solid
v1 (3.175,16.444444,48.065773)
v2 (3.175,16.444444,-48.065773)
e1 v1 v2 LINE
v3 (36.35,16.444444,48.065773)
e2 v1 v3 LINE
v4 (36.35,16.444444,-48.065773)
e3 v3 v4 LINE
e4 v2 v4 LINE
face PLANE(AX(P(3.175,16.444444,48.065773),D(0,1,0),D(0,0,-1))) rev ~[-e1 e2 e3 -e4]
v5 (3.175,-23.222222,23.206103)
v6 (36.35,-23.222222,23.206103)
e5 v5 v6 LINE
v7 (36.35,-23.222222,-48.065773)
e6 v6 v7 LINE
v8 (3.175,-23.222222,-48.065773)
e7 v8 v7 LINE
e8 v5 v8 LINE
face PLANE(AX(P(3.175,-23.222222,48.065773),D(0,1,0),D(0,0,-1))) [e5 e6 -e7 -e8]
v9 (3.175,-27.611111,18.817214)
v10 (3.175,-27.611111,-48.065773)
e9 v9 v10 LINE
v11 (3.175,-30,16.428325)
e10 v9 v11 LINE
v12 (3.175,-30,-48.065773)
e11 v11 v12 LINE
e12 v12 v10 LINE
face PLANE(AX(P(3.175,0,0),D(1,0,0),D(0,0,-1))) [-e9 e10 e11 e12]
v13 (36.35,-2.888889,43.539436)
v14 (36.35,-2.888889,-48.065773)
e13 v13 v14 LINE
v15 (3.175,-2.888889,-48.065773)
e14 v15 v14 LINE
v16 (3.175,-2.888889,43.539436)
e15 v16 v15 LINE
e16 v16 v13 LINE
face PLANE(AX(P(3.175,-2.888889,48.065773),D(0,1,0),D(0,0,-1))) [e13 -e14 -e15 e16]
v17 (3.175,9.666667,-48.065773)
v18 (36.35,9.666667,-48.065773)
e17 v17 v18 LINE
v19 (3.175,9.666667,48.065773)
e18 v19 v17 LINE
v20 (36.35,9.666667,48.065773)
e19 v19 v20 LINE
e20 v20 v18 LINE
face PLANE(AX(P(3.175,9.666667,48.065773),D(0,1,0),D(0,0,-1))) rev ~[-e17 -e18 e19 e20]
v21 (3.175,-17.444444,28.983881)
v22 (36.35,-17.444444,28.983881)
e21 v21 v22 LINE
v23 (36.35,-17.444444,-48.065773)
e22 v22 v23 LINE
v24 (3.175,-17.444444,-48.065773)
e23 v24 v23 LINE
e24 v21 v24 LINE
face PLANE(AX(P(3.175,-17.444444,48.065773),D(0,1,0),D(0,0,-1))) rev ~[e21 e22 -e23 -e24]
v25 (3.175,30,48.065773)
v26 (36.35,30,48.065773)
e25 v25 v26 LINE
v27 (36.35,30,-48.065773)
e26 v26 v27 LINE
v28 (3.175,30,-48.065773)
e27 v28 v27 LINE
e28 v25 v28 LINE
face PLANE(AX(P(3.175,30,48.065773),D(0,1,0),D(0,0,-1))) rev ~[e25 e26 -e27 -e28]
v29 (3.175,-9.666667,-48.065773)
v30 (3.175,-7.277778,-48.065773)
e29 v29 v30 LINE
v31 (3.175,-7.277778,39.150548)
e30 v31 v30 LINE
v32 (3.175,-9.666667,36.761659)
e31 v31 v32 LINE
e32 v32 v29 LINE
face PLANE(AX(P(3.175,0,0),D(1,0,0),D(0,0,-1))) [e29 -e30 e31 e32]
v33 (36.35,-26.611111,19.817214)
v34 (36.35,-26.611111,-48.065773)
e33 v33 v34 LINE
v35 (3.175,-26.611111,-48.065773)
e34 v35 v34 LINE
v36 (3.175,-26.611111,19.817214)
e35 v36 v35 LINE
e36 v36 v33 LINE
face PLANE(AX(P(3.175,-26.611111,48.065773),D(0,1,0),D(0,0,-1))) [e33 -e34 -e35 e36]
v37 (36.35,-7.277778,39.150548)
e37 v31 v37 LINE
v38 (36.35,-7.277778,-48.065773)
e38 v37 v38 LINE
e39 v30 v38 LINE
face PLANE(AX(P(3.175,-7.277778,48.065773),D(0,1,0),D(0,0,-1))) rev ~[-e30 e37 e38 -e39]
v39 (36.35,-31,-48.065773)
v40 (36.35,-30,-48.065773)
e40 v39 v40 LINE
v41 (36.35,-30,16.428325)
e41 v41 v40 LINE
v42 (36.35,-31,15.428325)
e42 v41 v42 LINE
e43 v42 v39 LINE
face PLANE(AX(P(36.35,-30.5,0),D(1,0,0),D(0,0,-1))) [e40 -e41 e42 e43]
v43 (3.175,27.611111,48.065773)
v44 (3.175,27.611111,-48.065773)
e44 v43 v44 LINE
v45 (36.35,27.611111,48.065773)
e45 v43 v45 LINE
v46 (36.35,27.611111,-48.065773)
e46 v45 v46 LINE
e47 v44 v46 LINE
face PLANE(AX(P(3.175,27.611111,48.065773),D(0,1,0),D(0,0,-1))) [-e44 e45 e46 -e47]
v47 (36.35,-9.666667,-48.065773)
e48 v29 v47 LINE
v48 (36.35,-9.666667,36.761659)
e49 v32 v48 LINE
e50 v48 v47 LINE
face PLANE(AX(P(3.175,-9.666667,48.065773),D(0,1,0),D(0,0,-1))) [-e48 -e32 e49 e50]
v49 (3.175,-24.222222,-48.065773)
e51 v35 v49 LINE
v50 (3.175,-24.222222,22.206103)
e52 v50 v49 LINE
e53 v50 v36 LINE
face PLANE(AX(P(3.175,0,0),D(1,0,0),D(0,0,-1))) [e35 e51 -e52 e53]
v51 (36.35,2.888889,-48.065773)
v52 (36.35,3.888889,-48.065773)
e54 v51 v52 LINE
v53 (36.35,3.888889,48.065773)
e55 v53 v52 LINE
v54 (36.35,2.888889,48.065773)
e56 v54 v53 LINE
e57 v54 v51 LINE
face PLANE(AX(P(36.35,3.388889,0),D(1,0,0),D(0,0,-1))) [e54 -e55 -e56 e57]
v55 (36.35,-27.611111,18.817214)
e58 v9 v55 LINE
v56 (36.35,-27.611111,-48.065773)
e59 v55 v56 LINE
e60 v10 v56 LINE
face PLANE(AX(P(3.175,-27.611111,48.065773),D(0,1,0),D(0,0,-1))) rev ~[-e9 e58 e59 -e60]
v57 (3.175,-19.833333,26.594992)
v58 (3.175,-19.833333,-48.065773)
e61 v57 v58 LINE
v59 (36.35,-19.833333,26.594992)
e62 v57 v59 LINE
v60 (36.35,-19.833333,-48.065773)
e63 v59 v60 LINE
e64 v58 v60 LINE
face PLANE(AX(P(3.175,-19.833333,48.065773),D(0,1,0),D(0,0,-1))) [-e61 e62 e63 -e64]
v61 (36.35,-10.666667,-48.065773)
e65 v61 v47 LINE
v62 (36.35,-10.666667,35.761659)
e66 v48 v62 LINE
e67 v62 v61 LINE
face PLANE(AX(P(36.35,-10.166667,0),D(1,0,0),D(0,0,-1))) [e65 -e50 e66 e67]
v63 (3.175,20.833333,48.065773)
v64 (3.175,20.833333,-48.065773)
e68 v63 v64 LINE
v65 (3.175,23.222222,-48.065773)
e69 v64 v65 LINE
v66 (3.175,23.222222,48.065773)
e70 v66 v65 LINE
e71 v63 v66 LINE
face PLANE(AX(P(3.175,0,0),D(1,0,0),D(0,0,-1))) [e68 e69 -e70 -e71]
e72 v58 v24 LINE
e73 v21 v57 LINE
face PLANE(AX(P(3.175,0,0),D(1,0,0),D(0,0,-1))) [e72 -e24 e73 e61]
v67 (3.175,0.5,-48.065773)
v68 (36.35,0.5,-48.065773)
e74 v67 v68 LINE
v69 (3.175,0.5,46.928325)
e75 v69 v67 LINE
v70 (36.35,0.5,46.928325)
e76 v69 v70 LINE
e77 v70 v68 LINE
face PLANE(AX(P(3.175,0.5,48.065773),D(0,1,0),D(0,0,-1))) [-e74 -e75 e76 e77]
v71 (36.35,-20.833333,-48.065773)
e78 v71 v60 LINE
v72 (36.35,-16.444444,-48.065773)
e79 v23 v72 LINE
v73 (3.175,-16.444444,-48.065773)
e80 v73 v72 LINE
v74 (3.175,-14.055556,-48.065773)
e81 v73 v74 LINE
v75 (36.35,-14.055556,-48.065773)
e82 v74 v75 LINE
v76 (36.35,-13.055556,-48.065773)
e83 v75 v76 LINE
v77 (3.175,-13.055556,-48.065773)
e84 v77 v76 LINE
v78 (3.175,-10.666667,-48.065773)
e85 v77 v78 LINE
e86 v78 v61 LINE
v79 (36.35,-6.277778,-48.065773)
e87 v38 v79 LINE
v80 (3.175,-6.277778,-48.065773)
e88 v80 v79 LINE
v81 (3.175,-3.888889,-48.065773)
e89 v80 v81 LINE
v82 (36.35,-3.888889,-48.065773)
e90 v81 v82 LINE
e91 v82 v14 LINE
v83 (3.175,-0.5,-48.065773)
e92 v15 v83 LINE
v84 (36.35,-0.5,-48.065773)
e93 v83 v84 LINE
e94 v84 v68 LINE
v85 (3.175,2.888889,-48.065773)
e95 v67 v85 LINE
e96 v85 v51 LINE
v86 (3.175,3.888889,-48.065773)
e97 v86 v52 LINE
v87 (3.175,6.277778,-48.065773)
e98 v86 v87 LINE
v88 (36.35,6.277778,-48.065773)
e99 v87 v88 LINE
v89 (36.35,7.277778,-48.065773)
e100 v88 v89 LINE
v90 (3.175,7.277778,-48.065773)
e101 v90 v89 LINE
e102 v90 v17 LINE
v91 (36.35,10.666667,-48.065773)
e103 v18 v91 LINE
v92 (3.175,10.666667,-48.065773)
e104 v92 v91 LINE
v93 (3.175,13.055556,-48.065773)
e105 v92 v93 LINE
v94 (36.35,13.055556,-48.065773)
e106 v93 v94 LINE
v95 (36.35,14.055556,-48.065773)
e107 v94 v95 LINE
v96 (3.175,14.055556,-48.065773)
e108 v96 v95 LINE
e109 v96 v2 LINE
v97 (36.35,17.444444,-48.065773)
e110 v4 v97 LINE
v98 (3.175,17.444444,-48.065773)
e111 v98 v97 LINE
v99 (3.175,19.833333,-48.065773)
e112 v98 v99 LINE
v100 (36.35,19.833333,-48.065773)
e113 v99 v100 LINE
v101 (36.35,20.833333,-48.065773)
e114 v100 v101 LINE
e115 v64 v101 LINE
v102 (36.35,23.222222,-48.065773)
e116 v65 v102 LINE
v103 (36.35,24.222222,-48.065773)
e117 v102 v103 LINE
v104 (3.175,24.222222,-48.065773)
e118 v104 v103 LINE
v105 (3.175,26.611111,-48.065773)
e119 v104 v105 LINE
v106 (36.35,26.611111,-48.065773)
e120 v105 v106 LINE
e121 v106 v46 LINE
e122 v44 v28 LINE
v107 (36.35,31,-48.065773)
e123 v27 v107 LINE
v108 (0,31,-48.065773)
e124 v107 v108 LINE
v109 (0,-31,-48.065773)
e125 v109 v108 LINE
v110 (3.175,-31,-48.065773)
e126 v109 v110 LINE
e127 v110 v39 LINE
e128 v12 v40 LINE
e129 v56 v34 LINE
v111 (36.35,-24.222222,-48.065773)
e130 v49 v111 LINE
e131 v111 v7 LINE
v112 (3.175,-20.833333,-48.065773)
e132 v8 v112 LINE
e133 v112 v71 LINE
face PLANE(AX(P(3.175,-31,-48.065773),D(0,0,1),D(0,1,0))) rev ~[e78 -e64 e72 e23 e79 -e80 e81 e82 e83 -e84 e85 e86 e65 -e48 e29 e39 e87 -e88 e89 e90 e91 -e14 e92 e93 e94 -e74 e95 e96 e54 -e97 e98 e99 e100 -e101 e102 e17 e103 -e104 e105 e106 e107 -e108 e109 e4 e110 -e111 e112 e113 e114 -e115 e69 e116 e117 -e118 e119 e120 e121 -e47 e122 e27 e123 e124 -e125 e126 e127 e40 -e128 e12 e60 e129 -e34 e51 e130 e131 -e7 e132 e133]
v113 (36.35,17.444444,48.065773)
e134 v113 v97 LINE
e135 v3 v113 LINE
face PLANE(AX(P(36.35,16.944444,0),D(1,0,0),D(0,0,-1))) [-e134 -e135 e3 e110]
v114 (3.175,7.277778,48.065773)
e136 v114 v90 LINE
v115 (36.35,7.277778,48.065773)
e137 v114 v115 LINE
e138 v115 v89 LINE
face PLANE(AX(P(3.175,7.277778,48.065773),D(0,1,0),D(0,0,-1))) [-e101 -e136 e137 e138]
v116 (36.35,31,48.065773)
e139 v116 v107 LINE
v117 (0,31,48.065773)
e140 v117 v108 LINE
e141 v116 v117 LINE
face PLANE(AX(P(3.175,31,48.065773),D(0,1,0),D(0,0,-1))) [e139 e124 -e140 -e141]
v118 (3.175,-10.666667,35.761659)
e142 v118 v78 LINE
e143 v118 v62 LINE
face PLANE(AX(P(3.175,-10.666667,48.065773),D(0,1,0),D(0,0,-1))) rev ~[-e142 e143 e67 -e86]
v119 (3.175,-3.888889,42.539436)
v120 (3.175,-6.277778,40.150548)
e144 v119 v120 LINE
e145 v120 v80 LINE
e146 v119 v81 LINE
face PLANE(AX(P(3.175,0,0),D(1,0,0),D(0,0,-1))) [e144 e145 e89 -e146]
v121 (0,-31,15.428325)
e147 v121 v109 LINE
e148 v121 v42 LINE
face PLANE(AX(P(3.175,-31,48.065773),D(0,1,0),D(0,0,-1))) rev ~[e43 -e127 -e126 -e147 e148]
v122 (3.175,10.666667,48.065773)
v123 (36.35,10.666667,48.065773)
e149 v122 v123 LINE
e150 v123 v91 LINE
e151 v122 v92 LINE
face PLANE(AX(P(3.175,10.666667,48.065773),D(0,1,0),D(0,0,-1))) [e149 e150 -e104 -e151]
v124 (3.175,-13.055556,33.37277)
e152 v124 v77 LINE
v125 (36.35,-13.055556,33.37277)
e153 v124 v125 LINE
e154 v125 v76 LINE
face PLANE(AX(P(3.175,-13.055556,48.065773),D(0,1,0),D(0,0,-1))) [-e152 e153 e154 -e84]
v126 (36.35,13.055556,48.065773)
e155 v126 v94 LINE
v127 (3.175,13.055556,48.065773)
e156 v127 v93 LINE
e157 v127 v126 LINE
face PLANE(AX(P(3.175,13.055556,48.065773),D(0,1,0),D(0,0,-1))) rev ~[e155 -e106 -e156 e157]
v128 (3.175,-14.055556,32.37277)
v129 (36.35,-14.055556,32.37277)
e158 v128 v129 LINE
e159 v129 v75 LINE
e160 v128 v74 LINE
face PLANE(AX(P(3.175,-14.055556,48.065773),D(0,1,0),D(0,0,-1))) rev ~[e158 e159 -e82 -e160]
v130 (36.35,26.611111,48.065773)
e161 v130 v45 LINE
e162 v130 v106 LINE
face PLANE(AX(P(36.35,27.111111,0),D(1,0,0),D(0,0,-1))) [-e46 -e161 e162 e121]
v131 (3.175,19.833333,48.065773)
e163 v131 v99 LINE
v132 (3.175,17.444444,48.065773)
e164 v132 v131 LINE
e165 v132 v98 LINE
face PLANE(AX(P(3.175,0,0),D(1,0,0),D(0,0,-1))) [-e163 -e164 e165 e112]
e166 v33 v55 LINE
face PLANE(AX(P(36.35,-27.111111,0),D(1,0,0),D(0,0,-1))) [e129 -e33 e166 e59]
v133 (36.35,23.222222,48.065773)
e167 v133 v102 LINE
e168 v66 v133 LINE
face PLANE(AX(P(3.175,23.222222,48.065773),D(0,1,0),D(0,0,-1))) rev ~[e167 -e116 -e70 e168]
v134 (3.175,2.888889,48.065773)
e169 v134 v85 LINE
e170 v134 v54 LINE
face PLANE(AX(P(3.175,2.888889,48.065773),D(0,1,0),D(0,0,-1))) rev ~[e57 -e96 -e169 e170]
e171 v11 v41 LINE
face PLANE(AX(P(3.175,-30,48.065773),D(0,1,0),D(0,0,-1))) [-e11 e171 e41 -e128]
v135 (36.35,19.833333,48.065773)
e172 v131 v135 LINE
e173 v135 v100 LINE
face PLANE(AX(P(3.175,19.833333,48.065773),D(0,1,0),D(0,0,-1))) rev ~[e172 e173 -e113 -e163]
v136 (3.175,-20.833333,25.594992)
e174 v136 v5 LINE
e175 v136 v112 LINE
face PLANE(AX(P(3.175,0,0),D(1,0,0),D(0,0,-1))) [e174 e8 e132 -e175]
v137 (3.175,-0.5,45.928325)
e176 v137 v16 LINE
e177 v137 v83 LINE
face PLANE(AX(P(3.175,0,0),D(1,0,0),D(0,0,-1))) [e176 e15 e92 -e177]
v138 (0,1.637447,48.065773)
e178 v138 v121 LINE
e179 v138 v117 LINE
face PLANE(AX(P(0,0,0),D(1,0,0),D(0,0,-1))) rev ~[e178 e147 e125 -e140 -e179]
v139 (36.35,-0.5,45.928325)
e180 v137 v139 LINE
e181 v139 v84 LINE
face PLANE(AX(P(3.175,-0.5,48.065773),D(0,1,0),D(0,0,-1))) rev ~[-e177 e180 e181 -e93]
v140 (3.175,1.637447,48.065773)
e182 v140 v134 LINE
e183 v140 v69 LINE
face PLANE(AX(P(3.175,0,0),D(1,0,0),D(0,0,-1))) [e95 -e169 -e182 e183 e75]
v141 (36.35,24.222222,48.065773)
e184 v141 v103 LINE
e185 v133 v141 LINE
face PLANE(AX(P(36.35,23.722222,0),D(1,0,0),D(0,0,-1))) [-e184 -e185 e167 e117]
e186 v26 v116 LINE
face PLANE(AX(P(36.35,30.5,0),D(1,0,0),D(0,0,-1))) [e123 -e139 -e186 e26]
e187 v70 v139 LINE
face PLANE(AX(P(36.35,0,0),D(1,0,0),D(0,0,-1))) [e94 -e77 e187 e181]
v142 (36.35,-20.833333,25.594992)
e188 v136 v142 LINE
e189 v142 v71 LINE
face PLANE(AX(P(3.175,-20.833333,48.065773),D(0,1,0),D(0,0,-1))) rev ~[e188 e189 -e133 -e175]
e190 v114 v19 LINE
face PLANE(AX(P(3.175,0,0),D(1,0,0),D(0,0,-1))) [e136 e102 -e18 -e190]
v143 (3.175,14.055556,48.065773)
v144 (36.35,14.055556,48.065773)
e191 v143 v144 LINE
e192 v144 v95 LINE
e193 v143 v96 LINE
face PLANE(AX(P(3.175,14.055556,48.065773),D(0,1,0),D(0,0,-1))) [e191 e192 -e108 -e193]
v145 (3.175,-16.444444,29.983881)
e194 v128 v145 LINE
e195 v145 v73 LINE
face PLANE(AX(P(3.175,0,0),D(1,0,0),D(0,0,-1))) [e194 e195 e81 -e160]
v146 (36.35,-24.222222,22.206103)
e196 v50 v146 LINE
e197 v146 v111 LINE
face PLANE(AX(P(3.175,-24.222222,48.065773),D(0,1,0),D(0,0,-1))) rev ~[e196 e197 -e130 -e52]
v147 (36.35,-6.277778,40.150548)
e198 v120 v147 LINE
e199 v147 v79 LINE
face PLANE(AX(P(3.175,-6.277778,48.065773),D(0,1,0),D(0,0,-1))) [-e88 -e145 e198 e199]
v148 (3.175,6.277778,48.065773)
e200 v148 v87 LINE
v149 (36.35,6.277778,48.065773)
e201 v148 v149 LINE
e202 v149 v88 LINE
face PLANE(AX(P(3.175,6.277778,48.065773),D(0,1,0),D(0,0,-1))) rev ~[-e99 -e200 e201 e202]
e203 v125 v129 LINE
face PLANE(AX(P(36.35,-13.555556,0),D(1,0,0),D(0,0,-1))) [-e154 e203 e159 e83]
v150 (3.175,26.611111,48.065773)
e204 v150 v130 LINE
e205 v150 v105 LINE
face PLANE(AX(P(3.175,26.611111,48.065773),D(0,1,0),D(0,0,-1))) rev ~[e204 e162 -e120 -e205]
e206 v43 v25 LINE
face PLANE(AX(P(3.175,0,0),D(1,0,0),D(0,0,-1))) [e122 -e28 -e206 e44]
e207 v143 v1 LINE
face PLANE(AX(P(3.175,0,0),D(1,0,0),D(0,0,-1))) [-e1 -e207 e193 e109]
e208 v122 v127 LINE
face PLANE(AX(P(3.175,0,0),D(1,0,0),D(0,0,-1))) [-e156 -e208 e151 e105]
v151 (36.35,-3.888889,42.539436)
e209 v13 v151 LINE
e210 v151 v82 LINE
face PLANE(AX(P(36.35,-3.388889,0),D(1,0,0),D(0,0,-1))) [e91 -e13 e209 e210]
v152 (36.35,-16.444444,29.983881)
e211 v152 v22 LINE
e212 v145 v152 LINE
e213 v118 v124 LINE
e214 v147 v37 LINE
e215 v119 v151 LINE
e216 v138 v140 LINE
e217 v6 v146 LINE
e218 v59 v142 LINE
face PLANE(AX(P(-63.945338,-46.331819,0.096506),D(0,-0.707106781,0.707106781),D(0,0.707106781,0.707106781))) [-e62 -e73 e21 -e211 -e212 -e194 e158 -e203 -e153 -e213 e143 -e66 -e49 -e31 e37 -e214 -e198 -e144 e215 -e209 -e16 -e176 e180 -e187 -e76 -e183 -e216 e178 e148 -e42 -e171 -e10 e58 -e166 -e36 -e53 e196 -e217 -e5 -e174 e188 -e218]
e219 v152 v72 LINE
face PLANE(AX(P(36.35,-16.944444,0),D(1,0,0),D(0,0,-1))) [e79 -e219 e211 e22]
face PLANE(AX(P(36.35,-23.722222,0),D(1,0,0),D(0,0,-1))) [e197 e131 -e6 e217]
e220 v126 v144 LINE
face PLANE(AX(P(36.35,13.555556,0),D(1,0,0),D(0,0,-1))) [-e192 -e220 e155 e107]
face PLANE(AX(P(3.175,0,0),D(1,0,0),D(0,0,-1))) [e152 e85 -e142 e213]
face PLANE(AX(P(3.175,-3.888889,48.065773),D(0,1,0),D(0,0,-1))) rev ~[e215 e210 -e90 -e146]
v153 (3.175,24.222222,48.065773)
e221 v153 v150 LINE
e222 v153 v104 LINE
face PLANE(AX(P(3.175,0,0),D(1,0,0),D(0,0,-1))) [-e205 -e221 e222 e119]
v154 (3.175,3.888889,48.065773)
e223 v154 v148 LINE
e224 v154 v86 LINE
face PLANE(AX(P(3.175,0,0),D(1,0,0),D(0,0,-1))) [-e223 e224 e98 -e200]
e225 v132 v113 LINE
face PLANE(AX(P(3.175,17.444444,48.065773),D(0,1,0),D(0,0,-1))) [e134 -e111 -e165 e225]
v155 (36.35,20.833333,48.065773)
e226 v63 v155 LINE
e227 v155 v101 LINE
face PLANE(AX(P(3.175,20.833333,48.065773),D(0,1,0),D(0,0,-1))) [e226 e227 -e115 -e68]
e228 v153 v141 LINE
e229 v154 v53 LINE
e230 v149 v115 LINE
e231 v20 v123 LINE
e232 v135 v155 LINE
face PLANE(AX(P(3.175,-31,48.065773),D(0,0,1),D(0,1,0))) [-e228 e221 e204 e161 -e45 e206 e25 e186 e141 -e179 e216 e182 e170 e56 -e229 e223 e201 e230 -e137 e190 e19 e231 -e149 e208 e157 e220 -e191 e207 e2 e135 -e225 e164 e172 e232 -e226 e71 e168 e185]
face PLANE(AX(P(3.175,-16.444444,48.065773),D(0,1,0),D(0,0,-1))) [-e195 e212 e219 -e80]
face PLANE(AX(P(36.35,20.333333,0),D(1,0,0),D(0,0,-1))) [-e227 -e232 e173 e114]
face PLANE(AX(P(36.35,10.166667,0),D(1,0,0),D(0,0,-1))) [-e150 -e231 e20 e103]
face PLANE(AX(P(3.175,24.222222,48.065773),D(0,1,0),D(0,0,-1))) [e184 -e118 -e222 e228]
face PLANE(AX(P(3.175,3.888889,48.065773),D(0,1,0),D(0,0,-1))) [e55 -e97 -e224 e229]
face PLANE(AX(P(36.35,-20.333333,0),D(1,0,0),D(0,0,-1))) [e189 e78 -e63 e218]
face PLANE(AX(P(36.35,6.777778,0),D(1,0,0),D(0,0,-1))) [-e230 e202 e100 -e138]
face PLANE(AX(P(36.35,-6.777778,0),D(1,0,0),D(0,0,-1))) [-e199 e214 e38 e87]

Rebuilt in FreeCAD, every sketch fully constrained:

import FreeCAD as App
import Part
import Sketcher

V = App.Vector
Q = App.Units.Quantity

doc = App.newDocument("Part")
body = doc.addObject("PartDesign::Body", "Body")

# Sketch on YZ plane
sketch1 = body.newObject("Sketcher::SketchObject", "Sketch")
sketch1.AttachmentSupport = (doc.getObject("YZ_Plane"), [""])
sketch1.MapMode = "FlatFace"
sketch1.addGeometry(Part.LineSegment(V(31, 48, 0), V(-31, 48, 0)), False)
sketch1.addGeometry(Part.LineSegment(V(-31, 48, 0), V(-31, -48, 0)), False)
sketch1.addGeometry(Part.LineSegment(V(-31, -48, 0), V(31, -48, 0)), False)
sketch1.addGeometry(Part.LineSegment(V(31, -48, 0), V(31, 48, 0)), False)
sketch1.addConstraint(Sketcher.Constraint("Coincident", 0, 2, 1, 1))
sketch1.addConstraint(Sketcher.Constraint("Coincident", 1, 2, 2, 1))
sketch1.addConstraint(Sketcher.Constraint("Coincident", 2, 2, 3, 1))
sketch1.addConstraint(Sketcher.Constraint("Coincident", 3, 2, 0, 1))
sketch1.addConstraint(Sketcher.Constraint("Horizontal", 0))
sketch1.addConstraint(Sketcher.Constraint("Vertical", 1))
sketch1.addConstraint(Sketcher.Constraint("Horizontal", 2))
sketch1.addConstraint(Sketcher.Constraint("Vertical", 3))
sketch1.addConstraint(Sketcher.Constraint("Symmetric", 0, 2, 2, 2, -1, 1))
sketch1.addConstraint(Sketcher.Constraint("DistanceX", 0, 2, 0, 1, Q("62 mm")))
sketch1.addConstraint(Sketcher.Constraint("DistanceY", 1, 2, 1, 1, Q("96.131545 mm")))
pad1 = body.newObject("PartDesign::Pad", "Pad")
pad1.Profile = sketch1
pad1.Length = 3.175

# Sketch on YZ plane
sketch2 = body.newObject("Sketcher::SketchObject", "Sketch001")
sketch2.AttachmentSupport = (doc.getObject("YZ_Plane"), [""])
sketch2.MapMode = "FlatFace"
sketch2.AttachmentOffset = App.Placement(V(0, 0, 3.175), App.Rotation())
sketch2.addGeometry(Part.LineSegment(V(31, 48.1, 0), V(30, 48.1, 0)), False)
sketch2.addGeometry(Part.LineSegment(V(30, 48.1, 0), V(30, -48.1, 0)), False)
sketch2.addGeometry(Part.LineSegment(V(30, -48.1, 0), V(31, -48.1, 0)), False)
sketch2.addGeometry(Part.LineSegment(V(31, -48.1, 0), V(31, 48.1, 0)), False)
sketch2.addConstraint(Sketcher.Constraint("Coincident", 0, 2, 1, 1))
sketch2.addConstraint(Sketcher.Constraint("Coincident", 1, 2, 2, 1))
sketch2.addConstraint(Sketcher.Constraint("Coincident", 2, 2, 3, 1))
sketch2.addConstraint(Sketcher.Constraint("Coincident", 3, 2, 0, 1))
sketch2.addConstraint(Sketcher.Constraint("Horizontal", 0))
sketch2.addConstraint(Sketcher.Constraint("Vertical", 1))
sketch2.addConstraint(Sketcher.Constraint("Horizontal", 2))
sketch2.addConstraint(Sketcher.Constraint("Vertical", 3))
sketch2.addConstraint(Sketcher.Constraint("DistanceX", 0, 2, 0, 1, Q("1 mm")))
sketch2.addConstraint(Sketcher.Constraint("DistanceX", -1, 1, 0, 2, Q("30 mm")))
sketch2.addConstraint(Sketcher.Constraint("DistanceY", 1, 2, 1, 1, Q("96.131545 mm")))
sketch2.addConstraint(Sketcher.Constraint("DistanceY", -1, 1, 0, 2, Q("48.065773 mm")))
pad2 = body.newObject("PartDesign::Pad", "Pad001")
pad2.Profile = sketch2
pad2.Length = 33.175
doc.recompute()

linearpattern = body.newObject("PartDesign::LinearPattern", "LinearPattern")
linearpattern.Originals = [pad2]
linearpattern.Direction = (doc.getObject("Y_Axis"), [""])
linearpattern.Mode = "offset"
linearpattern.Offset = 3.388889
linearpattern.Occurrences = 19
linearpattern.Reversed = True
body.Tip = linearpattern

# Sketch on YZ plane
sketch3 = body.newObject("Sketcher::SketchObject", "Sketch002")
sketch3.AttachmentSupport = (doc.getObject("YZ_Plane"), [""])
sketch3.MapMode = "FlatFace"
sketch3.AttachmentOffset = App.Placement(V(0, 0, 3.175), App.Rotation())
sketch3.addGeometry(Part.LineSegment(V(-46, 0, 0), V(9, 55, 0)), False)
sketch3.addGeometry(Part.LineSegment(V(9, 55, 0), V(-24, 88, 0)), False)
sketch3.addGeometry(Part.LineSegment(V(-24, 88, 0), V(-79, 33, 0)), False)
sketch3.addGeometry(Part.LineSegment(V(-79, 33, 0), V(-46, 0, 0)), False)
sketch3.addConstraint(Sketcher.Constraint("Coincident", 0, 2, 1, 1))
sketch3.addConstraint(Sketcher.Constraint("Coincident", 1, 2, 2, 1))
sketch3.addConstraint(Sketcher.Constraint("Coincident", 2, 2, 3, 1))
sketch3.addConstraint(Sketcher.Constraint("Coincident", 3, 2, 0, 1))
sketch3.addConstraint(Sketcher.Constraint("Perpendicular", 0, 1))
sketch3.addConstraint(Sketcher.Constraint("Perpendicular", 1, 2))
sketch3.addConstraint(Sketcher.Constraint("Perpendicular", 2, 3))
sketch3.addConstraint(Sketcher.Constraint("Angle", 0, Q("45 deg")))
sketch3.addConstraint(Sketcher.Constraint("DistanceY", -1, 1, 0, 2, Q("55.483661 mm")))
sketch3.addConstraint(Sketcher.Constraint("DistanceY", -1, 1, 1, 2, Q("88.096831 mm")))
sketch3.addConstraint(Sketcher.Constraint("DistanceX", 2, 2, -1, 1, Q("78.944989 mm")))
sketch3.addConstraint(Sketcher.Constraint("Distance", 0, Q("78.329266 mm")))
pocket1 = body.newObject("PartDesign::Pocket", "Pocket")
pocket1.Profile = sketch3
pocket1.Type = "ThroughAll"
pocket1.Midplane = True

doc.recompute()
